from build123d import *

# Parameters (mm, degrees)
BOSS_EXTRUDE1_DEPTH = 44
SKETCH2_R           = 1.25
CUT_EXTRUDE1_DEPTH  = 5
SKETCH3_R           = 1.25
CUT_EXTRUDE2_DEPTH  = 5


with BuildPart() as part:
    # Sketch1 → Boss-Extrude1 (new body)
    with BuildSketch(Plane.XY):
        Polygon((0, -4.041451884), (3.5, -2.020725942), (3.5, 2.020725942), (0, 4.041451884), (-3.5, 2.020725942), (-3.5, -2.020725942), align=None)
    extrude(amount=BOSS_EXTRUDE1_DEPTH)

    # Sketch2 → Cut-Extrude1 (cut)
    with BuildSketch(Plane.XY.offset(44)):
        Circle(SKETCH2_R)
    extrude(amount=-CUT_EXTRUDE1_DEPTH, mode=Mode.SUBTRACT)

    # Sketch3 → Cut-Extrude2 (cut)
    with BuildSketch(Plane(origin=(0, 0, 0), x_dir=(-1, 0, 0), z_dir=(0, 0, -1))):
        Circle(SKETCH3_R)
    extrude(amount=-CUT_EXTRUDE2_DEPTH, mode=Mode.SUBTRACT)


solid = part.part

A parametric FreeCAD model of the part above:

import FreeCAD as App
import Part
import Sketcher

V = App.Vector
Q = App.Units.Quantity

doc = App.newDocument("Part")
params = doc.addObject("Spreadsheet::Sheet", "Params")
for row, (alias, value) in enumerate([
    ("pad1_length", "44 mm"),
    ("sketch2_diameter", "2.5 mm"),
    ("pocket1_length", "5 mm"),
    ("sketch3_diameter", "2.5 mm"),
    ("pocket2_length", "5 mm"),
], start=1):
    params.set(f"A{row}", alias)
    params.set(f"B{row}", "=" + value)
    params.setAlias(f"B{row}", alias)

body = doc.addObject("PartDesign::Body", "Body")

# Sketch on XY plane
sketch1 = body.newObject("Sketcher::SketchObject", "Sketch")
sketch1.AttachmentSupport = (doc.getObject("XY_Plane"), [""])
sketch1.MapMode = "FlatFace"
sketch1.addGeometry([
    Part.LineSegment(V(0, -4, 0), V(3.5, -2, 0)),  # 0
    Part.LineSegment(V(3.5, -2, 0), V(3.5, 2, 0)),  # 1
    Part.LineSegment(V(3.5, 2, 0), V(0, 4, 0)),  # 2
    Part.LineSegment(V(0, 4, 0), V(-3.5, 2, 0)),  # 3
    Part.LineSegment(V(-3.5, 2, 0), V(-3.5, -2, 0)),  # 4
    Part.LineSegment(V(-3.5, -2, 0), V(0, -4, 0)),  # 5
], False)
sketch1.addConstraint([
    Sketcher.Constraint("Coincident", 0, 2, 1, 1),
    Sketcher.Constraint("Coincident", 1, 2, 2, 1),
    Sketcher.Constraint("Coincident", 2, 2, 3, 1),
    Sketcher.Constraint("Coincident", 3, 2, 4, 1),
    Sketcher.Constraint("Coincident", 4, 2, 5, 1),
    Sketcher.Constraint("Coincident", 5, 2, 0, 1),
    Sketcher.Constraint("Vertical", 1),
    Sketcher.Constraint("Vertical", 4),
    Sketcher.Constraint("Symmetric", 0, 2, 3, 2, -1, 1),
    Sketcher.Constraint("Symmetric", 2, 2, 5, 2, -1, 1),
    Sketcher.Constraint("PointOnObject", 2, 2, -2),
    Sketcher.Constraint("Parallel", 2, 5),
    Sketcher.Constraint("Horizontal", 1, 2, 3, 2),
    Sketcher.Constraint("Angle", 0, Q("30 deg")),
    Sketcher.Constraint("DistanceX", 3, 2, 1, 2, 7.0),
    Sketcher.Constraint("DistanceY", 1, 1, 1, 2, 4.041452),
])
pad1 = body.newObject("PartDesign::Pad", "Pad")
pad1.Profile = sketch1
pad1.setExpression("Length", "Params.pad1_length")

# Sketch on XY plane
sketch2 = body.newObject("Sketcher::SketchObject", "Sketch001")
sketch2.AttachmentSupport = (doc.getObject("XY_Plane"), [""])
sketch2.MapMode = "FlatFace"
sketch2.AttachmentOffset = App.Placement(V(0, 0, 44), App.Rotation())
sketch2.addGeometry(Part.Circle(V(0, 0, 0), V(0, 0, 1), 1.2), False)
sketch2.addConstraint([
    Sketcher.Constraint("Coincident", 0, 3, -1, 1),
    Sketcher.Constraint("Diameter", 0, 2.5),
])
sketch2.setExpression("Constraints[1]", "Params.sketch2_diameter")
pocket1 = body.newObject("PartDesign::Pocket", "Pocket")
pocket1.Profile = sketch2
pocket1.setExpression("Length", "Params.pocket1_length")

# Sketch on XY plane
sketch3 = body.newObject("Sketcher::SketchObject", "Sketch002")
sketch3.AttachmentSupport = (doc.getObject("XY_Plane"), [""])
sketch3.MapMode = "FlatFace"
sketch3.addGeometry(Part.Circle(V(0, 0, 0), V(0, 0, 1), 1.2), False)
sketch3.addConstraint([
    Sketcher.Constraint("Coincident", 0, 3, -1, 1),
    Sketcher.Constraint("Diameter", 0, 2.5),
])
sketch3.setExpression("Constraints[1]", "Params.sketch3_diameter")
pocket2 = body.newObject("PartDesign::Pocket", "Pocket001")
pocket2.Profile = sketch3
pocket2.setExpression("Length", "Params.pocket2_length")
pocket2.Reversed = True

doc.recompute()
